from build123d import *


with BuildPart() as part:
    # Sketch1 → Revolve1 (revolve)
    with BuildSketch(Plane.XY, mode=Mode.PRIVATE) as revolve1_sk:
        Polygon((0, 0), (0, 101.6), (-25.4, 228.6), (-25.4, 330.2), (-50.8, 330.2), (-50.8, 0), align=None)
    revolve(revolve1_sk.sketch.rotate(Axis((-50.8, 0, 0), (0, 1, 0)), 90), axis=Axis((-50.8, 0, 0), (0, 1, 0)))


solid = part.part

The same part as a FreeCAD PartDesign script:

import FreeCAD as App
import Part
import Sketcher
Q = App.Units.Quantity


def add_polygon(sketch, points):
    """Adds a closed chain of lines whose ends are joined by coincident constraints."""
    first, n = sketch.GeometryCount, len(points)
    for a, b in zip(points, points[1:] + points[:1]):
        sketch.addGeometry(Part.LineSegment(App.Vector(*a, 0), App.Vector(*b, 0)), False)
    for i in range(n):
        sketch.addConstraint(Sketcher.Constraint("Coincident", first + i, 2, first + (i + 1) % n, 1))

doc = App.newDocument("Part")
body = doc.addObject("PartDesign::Body", "Body")

# Sketch on XY plane
sketch1 = body.newObject("Sketcher::SketchObject", "Sketch")
sketch1.AttachmentSupport = (doc.getObject("XY_Plane"), [""])
sketch1.MapMode = "FlatFace"
add_polygon(sketch1, [(0, 0), (0, 102), (-25, 229), (-25, 330), (-51, 330), (-51, 0)])  # lines 0-5
sketch1.addGeometry(Part.LineSegment(App.Vector(-51, 0, 0), App.Vector(-51, 330, 0)), True)  # axis
sketch1.addConstraint([
    Sketcher.Constraint("Vertical", 0),
    Sketcher.Constraint("Vertical", 2),
    Sketcher.Constraint("Horizontal", 3),
    Sketcher.Constraint("Vertical", 4),
    Sketcher.Constraint("Horizontal", 5),
    Sketcher.Constraint("Vertical", 6),
    Sketcher.Constraint("Coincident", 5, 2, -1, 1),
    Sketcher.Constraint("Coincident", 6, 1, 4, 2),
    Sketcher.Constraint("Horizontal", 2, 2, 6, 2),
    Sketcher.Constraint("Equal", 0, 2),
    Sketcher.Constraint("DistanceX", 3, 2, 3, 1, Q("1 in")),
    Sketcher.Constraint("DistanceX", 5, 1, 5, 2, Q("2 in")),
    Sketcher.Constraint("DistanceY", 0, 1, 0, 2, Q("4 in")),
    Sketcher.Constraint("DistanceY", 4, 2, 4, 1, Q("13 in")),
])
revolution = body.newObject("PartDesign::Revolution", "Revolution")
revolution.Profile = sketch1
revolution.ReferenceAxis = (sketch1, ["Axis0"])
revolution.Angle = 360

doc.recompute()
